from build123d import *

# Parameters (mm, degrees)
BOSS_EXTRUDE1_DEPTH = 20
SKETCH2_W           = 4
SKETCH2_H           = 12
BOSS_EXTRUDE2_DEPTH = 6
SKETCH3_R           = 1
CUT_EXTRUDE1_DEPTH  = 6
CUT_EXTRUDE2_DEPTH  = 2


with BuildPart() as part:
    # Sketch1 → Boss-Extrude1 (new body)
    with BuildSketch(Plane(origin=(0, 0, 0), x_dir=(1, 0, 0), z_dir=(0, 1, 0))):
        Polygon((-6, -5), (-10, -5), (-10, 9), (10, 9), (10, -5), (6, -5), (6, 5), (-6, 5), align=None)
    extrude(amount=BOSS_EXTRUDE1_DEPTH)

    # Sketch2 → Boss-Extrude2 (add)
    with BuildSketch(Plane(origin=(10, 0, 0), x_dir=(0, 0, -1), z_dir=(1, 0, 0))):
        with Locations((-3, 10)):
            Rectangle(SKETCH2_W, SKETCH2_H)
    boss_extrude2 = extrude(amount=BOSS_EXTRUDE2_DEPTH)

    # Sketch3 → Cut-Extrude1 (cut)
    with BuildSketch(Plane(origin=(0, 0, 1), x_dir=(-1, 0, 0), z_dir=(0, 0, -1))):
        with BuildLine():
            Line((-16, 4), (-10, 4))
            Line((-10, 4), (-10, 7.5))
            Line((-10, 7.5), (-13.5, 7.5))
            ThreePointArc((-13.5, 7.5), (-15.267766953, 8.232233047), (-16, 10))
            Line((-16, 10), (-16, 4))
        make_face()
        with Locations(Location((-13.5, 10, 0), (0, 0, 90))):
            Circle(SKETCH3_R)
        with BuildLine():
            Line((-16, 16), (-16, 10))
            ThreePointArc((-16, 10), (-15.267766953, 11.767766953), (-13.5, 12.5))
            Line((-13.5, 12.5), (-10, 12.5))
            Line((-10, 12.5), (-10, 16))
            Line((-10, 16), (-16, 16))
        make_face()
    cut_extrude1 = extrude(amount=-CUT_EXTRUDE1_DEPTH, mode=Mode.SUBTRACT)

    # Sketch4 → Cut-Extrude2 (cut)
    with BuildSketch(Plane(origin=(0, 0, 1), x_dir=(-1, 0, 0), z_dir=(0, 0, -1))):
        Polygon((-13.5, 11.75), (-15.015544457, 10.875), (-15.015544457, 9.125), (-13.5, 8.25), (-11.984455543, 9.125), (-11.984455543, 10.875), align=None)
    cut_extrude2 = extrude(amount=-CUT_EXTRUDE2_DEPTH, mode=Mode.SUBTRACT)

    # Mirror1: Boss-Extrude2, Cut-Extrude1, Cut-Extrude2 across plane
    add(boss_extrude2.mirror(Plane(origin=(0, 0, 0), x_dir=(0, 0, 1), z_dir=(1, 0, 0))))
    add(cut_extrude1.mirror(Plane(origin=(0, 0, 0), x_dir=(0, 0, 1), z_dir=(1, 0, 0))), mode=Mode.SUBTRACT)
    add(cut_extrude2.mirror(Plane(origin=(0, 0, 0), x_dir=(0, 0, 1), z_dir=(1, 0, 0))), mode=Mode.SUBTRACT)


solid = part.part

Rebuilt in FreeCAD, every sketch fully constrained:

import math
import FreeCAD as App
import Part
import Sketcher

V = App.Vector
Q = App.Units.Quantity


def add_polygon(sketch, points):
    """Adds a closed chain of lines whose ends are joined by coincident constraints."""
    first, n = sketch.GeometryCount, len(points)
    for a, b in zip(points, points[1:] + points[:1]):
        sketch.addGeometry(Part.LineSegment(App.Vector(*a, 0), App.Vector(*b, 0)), False)
    for i in range(n):
        sketch.addConstraint(Sketcher.Constraint("Coincident", first + i, 2, first + (i + 1) % n, 1))

doc = App.newDocument("Part")
body = doc.addObject("PartDesign::Body", "Body")

sketch1 = doc.addObject("Sketcher::SketchObject", "Sketch")
body.addObject(sketch1)
sketch1.AttachmentSupport = (doc.XZ_Plane, [""])
sketch1.MapMode = "FlatFace"
add_polygon(sketch1, [(-10, 5), (-6, 5), (-6, -5), (6, -5), (6, 5), (10, 5), (10, -9), (-10, -9)])
sketch1.addConstraint([
    Sketcher.Constraint("Horizontal", 0),
    Sketcher.Constraint("Vertical", 1),
    Sketcher.Constraint("Horizontal", 2),
    Sketcher.Constraint("Vertical", 3),
    Sketcher.Constraint("Horizontal", 4),
    Sketcher.Constraint("Vertical", 5),
    Sketcher.Constraint("Horizontal", 6),
    Sketcher.Constraint("Vertical", 7),
    Sketcher.Constraint("Symmetric", 0, 2, 2, 2, -1, 1),
    Sketcher.Constraint("Symmetric", 4, 2, 7, 2, -2),
    Sketcher.Constraint("DistanceX", 0, 1, 0, 2, 4.0),
    Sketcher.Constraint("DistanceX", 2, 1, 2, 2, 12.0),
    Sketcher.Constraint("DistanceY", 1, 2, 1, 1, 10.0),
    Sketcher.Constraint("DistanceY", 5, 2, 5, 1, 14.0),
])
pad1 = doc.addObject("PartDesign::Pad", "Pad")
body.addObject(pad1)
pad1.Profile = sketch1
pad1.Length = 20
pad1.Reversed = True

sketch2 = doc.addObject("Sketcher::SketchObject", "Sketch001")
body.addObject(sketch2)
sketch2.AttachmentSupport = (doc.YZ_Plane, [""])
sketch2.MapMode = "FlatFace"
sketch2.AttachmentOffset = App.Placement(V(0, 0, 10), App.Rotation())
add_polygon(sketch2, [(16, 5), (4, 5), (4, 1), (16, 1)])
sketch2.addConstraint([
    Sketcher.Constraint("Horizontal", 0),
    Sketcher.Constraint("Vertical", 1),
    Sketcher.Constraint("Horizontal", 2),
    Sketcher.Constraint("Vertical", 3),
    Sketcher.Constraint("DistanceX", 0, 2, 0, 1, 12.0),
    Sketcher.Constraint("DistanceY", 1, 2, 1, 1, 4.0),
    Sketcher.Constraint("DistanceX", -1, 1, 0, 2, 4.0),
    Sketcher.Constraint("DistanceY", -1, 1, 0, 2, 5.0),
])
pad2 = doc.addObject("PartDesign::Pad", "Pad001")
body.addObject(pad2)
pad2.Profile = sketch2
pad2.Length = 6

sketch3 = doc.addObject("Sketcher::SketchObject", "Sketch002")
body.addObject(sketch3)
sketch3.AttachmentSupport = (doc.XY_Plane, [""])
sketch3.MapMode = "FlatFace"
sketch3.AttachmentOffset = App.Placement(V(0, 0, 1), App.Rotation())
sketch3.addGeometry([
    Part.LineSegment(V(16, 4, 0), V(10, 4, 0)),
    Part.LineSegment(V(10, 4, 0), V(10, 7.5, 0)),
    Part.LineSegment(V(10, 7.5, 0), V(13.5, 7.5, 0)),
    Part.ArcOfCircle(Part.Circle(V(13.5, 10, 0), V(0, 0, 1), 2.5), math.radians(-90), math.radians(0)),
    Part.LineSegment(V(16, 10, 0), V(16, 4, 0)),
    Part.Circle(V(13.5, 10, 0), V(0, 0, 1), 1),
    Part.LineSegment(V(16, 16, 0), V(16, 10, 0)),
    Part.ArcOfCircle(Part.Circle(V(13.5, 10, 0), V(0, 0, 1), 2.5), math.radians(0), math.radians(90)),
    Part.LineSegment(V(13.5, 12.5, 0), V(10, 12.5, 0)),
    Part.LineSegment(V(10, 12.5, 0), V(10, 16, 0)),
    Part.LineSegment(V(10, 16, 0), V(16, 16, 0)),
], False)
sketch3.addConstraint([
    Sketcher.Constraint("Coincident", 0, 2, 1, 1),
    Sketcher.Constraint("Coincident", 1, 2, 2, 1),
    Sketcher.Constraint("Tangent", 2, 2, 3, 1),
    Sketcher.Constraint("Tangent", 3, 2, 4, 1),
    Sketcher.Constraint("Coincident", 4, 2, 0, 1),
    Sketcher.Constraint("Tangent", 6, 2, 7, 1),
    Sketcher.Constraint("Tangent", 7, 2, 8, 1),
    Sketcher.Constraint("Coincident", 8, 2, 9, 1),
    Sketcher.Constraint("Coincident", 9, 2, 10, 1),
    Sketcher.Constraint("Coincident", 10, 2, 6, 1),
    Sketcher.Constraint("Horizontal", 0),
    Sketcher.Constraint("Vertical", 1),
    Sketcher.Constraint("Horizontal", 2),
    Sketcher.Constraint("Vertical", 4),
    Sketcher.Constraint("Vertical", 6),
    Sketcher.Constraint("Horizontal", 8),
    Sketcher.Constraint("Vertical", 9),
    Sketcher.Constraint("Horizontal", 10),
    Sketcher.Constraint("Coincident", 5, 3, 3, 3),
    Sketcher.Constraint("Coincident", 7, 3, 3, 3),
    Sketcher.Constraint("Equal", 3, 7),
    Sketcher.Constraint("Vertical", 1, 2, 8, 2),
    Sketcher.Constraint("Equal", 8, 1),
    Sketcher.Constraint("Equal", 4, 6),
    Sketcher.Constraint("Diameter", 5, 2.0),
    Sketcher.Constraint("Radius", 3, 2.5),
    Sketcher.Constraint("DistanceX", 0, 2, 0, 1, 6.0),
    Sketcher.Constraint("DistanceY", -1, 1, 3, 3, 10.0),
    Sketcher.Constraint("DistanceX", -1, 1, 0, 2, 10.0),
])
pocket1 = doc.addObject("PartDesign::Pocket", "Pocket")
body.addObject(pocket1)
pocket1.Profile = sketch3
pocket1.Length = 6
pocket1.Reversed = True

sketch4 = doc.addObject("Sketcher::SketchObject", "Sketch003")
body.addObject(sketch4)
sketch4.AttachmentSupport = (doc.XY_Plane, [""])
sketch4.MapMode = "FlatFace"
sketch4.AttachmentOffset = App.Placement(V(0, 0, 1), App.Rotation())
add_polygon(sketch4, [(13.5, 11.8), (15, 10.9), (15, 9.1), (13.5, 8.2), (12, 9.1), (12, 10.9)])
sketch4.addConstraint([
    Sketcher.Constraint("Vertical", 1),
    Sketcher.Constraint("Vertical", 4),
    Sketcher.Constraint("Parallel", 0, 3),
    Sketcher.Constraint("Parallel", 2, 5),
    Sketcher.Constraint("Horizontal", 1, 2, 3, 2),
    Sketcher.Constraint("Horizontal", 0, 2, 4, 2),
    Sketcher.Constraint("Vertical", 2, 2, 5, 2),
    Sketcher.Constraint("Angle", 0, Q("-30 deg")),
    Sketcher.Constraint("DistanceY", 1, 2, 1, 1, 1.75),
    Sketcher.Constraint("DistanceX", -1, 1, 2, 2, 13.5),
    Sketcher.Constraint("DistanceY", 2, 2, 5, 2, 3.5),
    Sketcher.Constraint("DistanceY", -1, 1, 2, 2, 8.25),
])
pocket2 = doc.addObject("PartDesign::Pocket", "Pocket001")
body.addObject(pocket2)
pocket2.Profile = sketch4
pocket2.Length = 2
pocket2.Reversed = True
doc.recompute()

mirrored = doc.addObject("PartDesign::Mirrored", "Mirrored")
body.addObject(mirrored)
mirrored.Originals = [pad2, pocket1, pocket2]
mirrored.MirrorPlane = (doc.YZ_Plane, [""])
body.Tip = mirrored

doc.recompute()
